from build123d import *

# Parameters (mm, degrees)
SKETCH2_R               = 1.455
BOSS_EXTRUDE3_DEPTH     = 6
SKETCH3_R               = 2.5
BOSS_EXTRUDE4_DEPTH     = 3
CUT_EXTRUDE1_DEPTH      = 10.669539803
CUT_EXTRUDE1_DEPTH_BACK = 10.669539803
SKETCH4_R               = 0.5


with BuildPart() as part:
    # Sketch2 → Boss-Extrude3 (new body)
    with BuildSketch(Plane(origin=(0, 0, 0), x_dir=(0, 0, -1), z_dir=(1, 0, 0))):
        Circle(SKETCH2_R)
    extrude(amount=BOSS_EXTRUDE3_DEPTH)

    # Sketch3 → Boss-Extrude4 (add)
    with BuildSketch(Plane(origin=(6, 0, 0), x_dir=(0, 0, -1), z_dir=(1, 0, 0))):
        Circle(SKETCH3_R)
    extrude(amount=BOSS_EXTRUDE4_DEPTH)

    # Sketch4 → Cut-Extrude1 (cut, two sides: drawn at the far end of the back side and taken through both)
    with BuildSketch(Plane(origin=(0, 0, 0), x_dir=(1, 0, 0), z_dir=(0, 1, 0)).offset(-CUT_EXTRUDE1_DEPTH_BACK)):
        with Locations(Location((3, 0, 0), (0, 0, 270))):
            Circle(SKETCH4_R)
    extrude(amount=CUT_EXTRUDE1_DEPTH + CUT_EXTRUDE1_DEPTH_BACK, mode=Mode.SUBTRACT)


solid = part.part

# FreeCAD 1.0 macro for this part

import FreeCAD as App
import Part
import Sketcher
from FreeCAD import Vector

doc = App.newDocument("Part")
body = doc.addObject("PartDesign::Body", "Body")

sketch1 = body.newObject("Sketcher::SketchObject", "Sketch")
sketch1.AttachmentSupport = (doc.getObject("YZ_Plane"), [""])
sketch1.MapMode = "FlatFace"
sketch1.addGeometry(Part.Circle(Vector(0, 0, 0), Vector(0, 0, 1), 1.5), False)
sketch1.addConstraint([
    Sketcher.Constraint("Coincident", 0, 3, -1, 1),
    Sketcher.Constraint("Diameter", 0, 2.91),
])
pad1 = body.newObject("PartDesign::Pad", "Pad")
pad1.Profile = sketch1
pad1.Length = 6

sketch2 = body.newObject("Sketcher::SketchObject", "Sketch001")
sketch2.AttachmentSupport = (doc.getObject("YZ_Plane"), [""])
sketch2.MapMode = "FlatFace"
sketch2.AttachmentOffset = App.Placement(Vector(0, 0, 6), App.Rotation())
sketch2.addGeometry(Part.Circle(Vector(0, 0, 0), Vector(0, 0, 1), 2.5), False)
sketch2.addConstraint([
    Sketcher.Constraint("Coincident", 0, 3, -1, 1),
    Sketcher.Constraint("Diameter", 0, 5.0),
])
pad2 = body.newObject("PartDesign::Pad", "Pad001")
pad2.Profile = sketch2
pad2.Length = 3

sketch3 = body.newObject("Sketcher::SketchObject", "Sketch002")
sketch3.AttachmentSupport = (doc.getObject("XZ_Plane"), [""])
sketch3.MapMode = "FlatFace"
sketch3.addGeometry(Part.Circle(Vector(3, 0, 0), Vector(0, 0, 1), 0.5), False)
sketch3.addConstraint([
    Sketcher.Constraint("PointOnObject", 0, 3, -1),
    Sketcher.Constraint("Diameter", 0, 1.0),
    Sketcher.Constraint("DistanceX", -1, 1, 0, 3, 3.0),
])
pocket1 = body.newObject("PartDesign::Pocket", "Pocket")
pocket1.Profile = sketch3
pocket1.Type = "ThroughAll"
pocket1.Midplane = True

doc.recompute()
